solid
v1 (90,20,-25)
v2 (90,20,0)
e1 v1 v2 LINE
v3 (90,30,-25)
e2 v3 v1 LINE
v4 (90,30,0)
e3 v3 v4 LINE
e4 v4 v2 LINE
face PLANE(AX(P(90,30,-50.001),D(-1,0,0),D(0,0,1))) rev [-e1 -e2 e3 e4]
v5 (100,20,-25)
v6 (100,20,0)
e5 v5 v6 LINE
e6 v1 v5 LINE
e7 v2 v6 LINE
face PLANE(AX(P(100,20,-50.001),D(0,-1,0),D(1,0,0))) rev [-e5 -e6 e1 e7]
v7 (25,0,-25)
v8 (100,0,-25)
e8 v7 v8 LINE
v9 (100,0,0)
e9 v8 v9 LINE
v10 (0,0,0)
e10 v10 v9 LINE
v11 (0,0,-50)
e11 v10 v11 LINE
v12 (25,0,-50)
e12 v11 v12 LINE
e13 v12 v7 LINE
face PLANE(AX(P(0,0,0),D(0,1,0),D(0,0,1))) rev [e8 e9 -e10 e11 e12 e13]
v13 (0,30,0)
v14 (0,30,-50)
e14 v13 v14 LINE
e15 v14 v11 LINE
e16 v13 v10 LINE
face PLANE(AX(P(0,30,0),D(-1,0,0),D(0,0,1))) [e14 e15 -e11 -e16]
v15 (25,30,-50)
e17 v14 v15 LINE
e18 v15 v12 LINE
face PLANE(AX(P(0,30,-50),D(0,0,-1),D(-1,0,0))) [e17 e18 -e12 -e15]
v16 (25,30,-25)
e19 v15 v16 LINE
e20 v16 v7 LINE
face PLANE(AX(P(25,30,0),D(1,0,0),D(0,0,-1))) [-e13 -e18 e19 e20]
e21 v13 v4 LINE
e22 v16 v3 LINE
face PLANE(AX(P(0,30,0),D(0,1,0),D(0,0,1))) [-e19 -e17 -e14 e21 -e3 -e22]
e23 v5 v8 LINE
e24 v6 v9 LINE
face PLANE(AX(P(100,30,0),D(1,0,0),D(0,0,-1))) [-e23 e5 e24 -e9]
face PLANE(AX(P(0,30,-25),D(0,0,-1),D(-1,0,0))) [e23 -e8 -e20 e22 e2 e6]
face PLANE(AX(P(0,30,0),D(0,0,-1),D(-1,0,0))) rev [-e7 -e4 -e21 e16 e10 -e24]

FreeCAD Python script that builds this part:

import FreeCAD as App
import Part
import Sketcher
from FreeCAD import Vector

doc = App.newDocument("Part")
params = doc.addObject("Spreadsheet::Sheet", "Params")
for row, (alias, value) in enumerate([
    ("sketch1_width", "75 mm"),
    ("sketch1_width2", "25 mm"),
    ("pad1_length", "30 mm"),
    ("sketch2_width", "10 mm"),
], start=1):
    params.set(f"A{row}", alias)
    params.set(f"B{row}", "=" + value)
    params.setAlias(f"B{row}", alias)

body = doc.addObject("PartDesign::Body", "Body")

sketch1 = body.newObject("Sketcher::SketchObject", "Sketch")
sketch1.AttachmentSupport = (doc.getObject("XZ_Plane"), [""])
sketch1.MapMode = "FlatFace"
sketch1.addGeometry([
    Part.LineSegment(Vector(100, 0, 0), Vector(100, -25, 0)),
    Part.LineSegment(Vector(100, -25, 0), Vector(25, -25, 0)),
    Part.LineSegment(Vector(25, -25, 0), Vector(25, -50, 0)),
    Part.LineSegment(Vector(25, -50, 0), Vector(0, -50, 0)),
    Part.LineSegment(Vector(0, -50, 0), Vector(0, 0, 0)),
    Part.LineSegment(Vector(0, 0, 0), Vector(100, 0, 0)),
], False)
sketch1.addConstraint([
    Sketcher.Constraint("Coincident", 0, 2, 1, 1),
    Sketcher.Constraint("Coincident", 1, 2, 2, 1),
    Sketcher.Constraint("Coincident", 2, 2, 3, 1),
    Sketcher.Constraint("Coincident", 3, 2, 4, 1),
    Sketcher.Constraint("Coincident", 4, 2, 5, 1),
    Sketcher.Constraint("Coincident", 5, 2, 0, 1),
    Sketcher.Constraint("Vertical", 0),
    Sketcher.Constraint("Horizontal", 1),
    Sketcher.Constraint("Vertical", 2),
    Sketcher.Constraint("Horizontal", 3),
    Sketcher.Constraint("Vertical", 4),
    Sketcher.Constraint("Horizontal", 5),
    Sketcher.Constraint("Coincident", 4, 2, -1, 1),
    Sketcher.Constraint("Equal", 3, 0),
    Sketcher.Constraint("Equal", 0, 2),
    Sketcher.Constraint("DistanceX", 1, 2, 1, 1, 75.0),
    Sketcher.Constraint("DistanceX", 3, 2, 3, 1, 25.0),
])
sketch1.setExpression("Constraints[15]", "Params.sketch1_width")
sketch1.setExpression("Constraints[16]", "Params.sketch1_width2")
pad1 = body.newObject("PartDesign::Pad", "Pad")
pad1.Profile = sketch1
pad1.setExpression("Length", "Params.pad1_length")
pad1.Reversed = True

sketch2 = body.newObject("Sketcher::SketchObject", "Sketch001")
sketch2.AttachmentSupport = (doc.getObject("XY_Plane"), [""])
sketch2.MapMode = "FlatFace"
sketch2.addGeometry([
    Part.LineSegment(Vector(90, 30, 0), Vector(90, 20, 0)),
    Part.LineSegment(Vector(90, 20, 0), Vector(100, 20, 0)),
    Part.LineSegment(Vector(100, 20, 0), Vector(100, 30, 0)),
    Part.LineSegment(Vector(100, 30, 0), Vector(90, 30, 0)),
], False)
sketch2.addConstraint([
    Sketcher.Constraint("Coincident", 0, 2, 1, 1),
    Sketcher.Constraint("Coincident", 1, 2, 2, 1),
    Sketcher.Constraint("Coincident", 2, 2, 3, 1),
    Sketcher.Constraint("Coincident", 3, 2, 0, 1),
    Sketcher.Constraint("Vertical", 0),
    Sketcher.Constraint("Horizontal", 1),
    Sketcher.Constraint("Vertical", 2),
    Sketcher.Constraint("Horizontal", 3),
    Sketcher.Constraint("Equal", 3, 0),
    Sketcher.Constraint("DistanceX", 1, 1, 1, 2, 10.0),
    Sketcher.Constraint("DistanceX", -1, 1, 0, 2, 90.0),
    Sketcher.Constraint("DistanceY", -1, 1, 0, 2, 20.0),
])
sketch2.setExpression("Constraints[9]", "Params.sketch2_width")
pocket1 = body.newObject("PartDesign::Pocket", "Pocket")
pocket1.Profile = sketch2
pocket1.Type = "UpToFirst"

doc.recompute()
